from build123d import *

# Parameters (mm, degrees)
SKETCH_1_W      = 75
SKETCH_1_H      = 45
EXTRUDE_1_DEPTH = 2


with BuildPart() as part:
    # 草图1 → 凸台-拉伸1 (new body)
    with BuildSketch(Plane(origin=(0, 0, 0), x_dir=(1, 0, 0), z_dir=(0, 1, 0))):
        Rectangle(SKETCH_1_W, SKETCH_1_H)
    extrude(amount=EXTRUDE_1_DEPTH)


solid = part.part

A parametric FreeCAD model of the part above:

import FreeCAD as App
import Part
import Sketcher

doc = App.newDocument("Part")
body = doc.addObject("PartDesign::Body", "Body")

# Sketch on XZ plane
sketch1 = body.newObject("Sketcher::SketchObject", "Sketch")
sketch1.AttachmentSupport = (doc.getObject("XZ_Plane"), [""])
sketch1.MapMode = "FlatFace"
sketch1.addGeometry([
    Part.LineSegment(App.Vector(-37.5, -22.5, 0), App.Vector(-37.5, 22.5, 0)),
    Part.LineSegment(App.Vector(-37.5, 22.5, 0), App.Vector(37.5, 22.5, 0)),
    Part.LineSegment(App.Vector(37.5, 22.5, 0), App.Vector(37.5, -22.5, 0)),
    Part.LineSegment(App.Vector(37.5, -22.5, 0), App.Vector(-37.5, -22.5, 0)),
], False)
sketch1.addConstraint([
    Sketcher.Constraint("Coincident", 0, 2, 1, 1),
    Sketcher.Constraint("Coincident", 1, 2, 2, 1),
    Sketcher.Constraint("Coincident", 2, 2, 3, 1),
    Sketcher.Constraint("Coincident", 3, 2, 0, 1),
    Sketcher.Constraint("Vertical", 0),
    Sketcher.Constraint("Horizontal", 1),
    Sketcher.Constraint("Vertical", 2),
    Sketcher.Constraint("Horizontal", 3),
    Sketcher.Constraint("Symmetric", 0, 2, 2, 2, -1, 1),
    Sketcher.Constraint("DistanceX", 1, 1, 1, 2, 75.0),
    Sketcher.Constraint("DistanceY", 0, 1, 0, 2, 45.0),
])
pad1 = body.newObject("PartDesign::Pad", "Pad")
pad1.Profile = sketch1
pad1.Length = 2
pad1.Reversed = True

doc.recompute()
